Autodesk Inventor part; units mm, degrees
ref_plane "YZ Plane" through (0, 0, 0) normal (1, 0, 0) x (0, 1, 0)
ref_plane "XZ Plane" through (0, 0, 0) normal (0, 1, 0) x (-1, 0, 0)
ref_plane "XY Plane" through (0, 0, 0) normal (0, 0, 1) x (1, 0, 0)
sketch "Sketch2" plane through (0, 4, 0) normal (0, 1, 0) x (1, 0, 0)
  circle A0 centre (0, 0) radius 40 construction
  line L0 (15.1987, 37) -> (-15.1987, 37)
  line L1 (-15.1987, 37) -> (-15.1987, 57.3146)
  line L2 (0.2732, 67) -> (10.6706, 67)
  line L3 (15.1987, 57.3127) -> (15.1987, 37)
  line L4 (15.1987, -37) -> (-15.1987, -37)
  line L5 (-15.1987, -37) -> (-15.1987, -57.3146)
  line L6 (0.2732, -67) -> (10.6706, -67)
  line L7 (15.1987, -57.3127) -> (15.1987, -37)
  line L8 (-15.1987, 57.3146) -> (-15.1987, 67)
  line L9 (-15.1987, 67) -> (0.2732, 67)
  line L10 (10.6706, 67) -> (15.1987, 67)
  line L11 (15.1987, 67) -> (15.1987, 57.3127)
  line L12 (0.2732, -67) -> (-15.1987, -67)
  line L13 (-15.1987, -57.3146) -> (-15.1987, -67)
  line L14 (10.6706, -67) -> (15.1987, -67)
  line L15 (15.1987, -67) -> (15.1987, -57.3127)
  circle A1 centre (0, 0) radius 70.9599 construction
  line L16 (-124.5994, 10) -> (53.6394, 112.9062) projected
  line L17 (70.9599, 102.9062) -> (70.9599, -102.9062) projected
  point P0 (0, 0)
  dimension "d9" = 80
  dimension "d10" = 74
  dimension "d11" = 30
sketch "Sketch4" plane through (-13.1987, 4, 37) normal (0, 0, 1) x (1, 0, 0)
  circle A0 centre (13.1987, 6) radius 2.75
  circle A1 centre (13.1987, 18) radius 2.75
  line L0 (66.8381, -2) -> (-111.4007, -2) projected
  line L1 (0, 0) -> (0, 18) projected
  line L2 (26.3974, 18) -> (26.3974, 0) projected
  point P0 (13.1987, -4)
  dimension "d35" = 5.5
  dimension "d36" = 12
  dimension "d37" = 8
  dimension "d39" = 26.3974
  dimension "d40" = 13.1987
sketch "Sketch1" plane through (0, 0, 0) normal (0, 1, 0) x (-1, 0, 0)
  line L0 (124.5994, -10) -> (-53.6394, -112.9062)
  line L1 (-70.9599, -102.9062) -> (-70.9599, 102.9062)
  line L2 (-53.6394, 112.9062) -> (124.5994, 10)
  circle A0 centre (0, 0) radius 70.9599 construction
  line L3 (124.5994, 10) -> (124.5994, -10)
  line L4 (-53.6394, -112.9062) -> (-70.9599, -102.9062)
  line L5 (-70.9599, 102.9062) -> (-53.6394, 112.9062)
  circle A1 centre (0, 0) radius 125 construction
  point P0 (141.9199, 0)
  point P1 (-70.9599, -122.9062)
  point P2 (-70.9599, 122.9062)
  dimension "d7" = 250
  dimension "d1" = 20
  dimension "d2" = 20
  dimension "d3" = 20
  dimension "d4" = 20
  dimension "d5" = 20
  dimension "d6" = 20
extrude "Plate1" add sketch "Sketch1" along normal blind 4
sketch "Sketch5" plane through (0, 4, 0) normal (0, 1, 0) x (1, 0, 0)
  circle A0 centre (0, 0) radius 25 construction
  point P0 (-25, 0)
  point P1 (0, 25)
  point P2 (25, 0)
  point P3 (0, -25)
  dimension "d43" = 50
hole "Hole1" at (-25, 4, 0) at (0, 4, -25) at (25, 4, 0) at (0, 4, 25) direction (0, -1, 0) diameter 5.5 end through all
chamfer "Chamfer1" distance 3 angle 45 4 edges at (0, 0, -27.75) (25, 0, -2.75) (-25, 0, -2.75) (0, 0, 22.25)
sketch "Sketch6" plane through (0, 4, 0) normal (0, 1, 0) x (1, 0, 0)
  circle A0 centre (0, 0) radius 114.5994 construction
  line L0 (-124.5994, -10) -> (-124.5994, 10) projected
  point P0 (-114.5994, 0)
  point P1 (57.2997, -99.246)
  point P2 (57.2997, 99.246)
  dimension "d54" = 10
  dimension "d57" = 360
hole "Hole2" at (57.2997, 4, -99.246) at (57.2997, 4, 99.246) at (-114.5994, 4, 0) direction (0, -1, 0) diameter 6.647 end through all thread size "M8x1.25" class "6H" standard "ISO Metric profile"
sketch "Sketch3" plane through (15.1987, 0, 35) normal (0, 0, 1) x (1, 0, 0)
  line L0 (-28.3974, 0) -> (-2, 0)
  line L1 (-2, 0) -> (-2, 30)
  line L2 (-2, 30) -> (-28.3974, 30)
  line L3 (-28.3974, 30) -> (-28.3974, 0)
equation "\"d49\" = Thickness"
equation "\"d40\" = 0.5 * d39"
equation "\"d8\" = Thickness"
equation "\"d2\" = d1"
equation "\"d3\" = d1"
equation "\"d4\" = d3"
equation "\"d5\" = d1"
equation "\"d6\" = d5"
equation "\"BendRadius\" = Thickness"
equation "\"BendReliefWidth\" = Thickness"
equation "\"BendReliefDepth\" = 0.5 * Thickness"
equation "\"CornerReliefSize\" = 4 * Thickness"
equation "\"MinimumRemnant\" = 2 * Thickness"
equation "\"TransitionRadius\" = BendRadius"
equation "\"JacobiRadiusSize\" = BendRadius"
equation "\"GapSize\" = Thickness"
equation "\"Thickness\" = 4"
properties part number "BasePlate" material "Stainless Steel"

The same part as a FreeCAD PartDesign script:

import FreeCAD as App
import Part
import Sketcher

V = App.Vector
Q = App.Units.Quantity


def edges_at(feature, points):
    """Names of the edges that pass closest to the given points."""
    edges = feature.Shape.Edges
    near = lambda p: min(range(len(edges)), key=lambda i: edges[i].distToShape(Part.Vertex(*p))[0])
    return sorted({f"Edge{near(p) + 1}" for p in points})

doc = App.newDocument("Part")
body = doc.addObject("PartDesign::Body", "Body")

# Sketch on XZ plane
sketch1 = doc.addObject("Sketcher::SketchObject", "Sketch")
body.addObject(sketch1)
sketch1.AttachmentSupport = (doc.XZ_Plane, [""])
sketch1.MapMode = "FlatFace"
sketch1.addGeometry(Part.LineSegment(V(53.6394, -112.9062, 0), V(-124.5994, -10, 0)), False)
sketch1.addGeometry(Part.LineSegment(V(-124.5994, -10, 0), V(-124.5994, 10, 0)), False)
sketch1.addGeometry(Part.LineSegment(V(-124.5994, 10, 0), V(53.6394, 112.9062, 0)), False)
sketch1.addGeometry(Part.LineSegment(V(53.6394, 112.9062, 0), V(70.9599, 102.9062, 0)), False)
sketch1.addGeometry(Part.LineSegment(V(70.9599, 102.9062, 0), V(70.9599, -102.9062, 0)), False)
sketch1.addGeometry(Part.LineSegment(V(70.9599, -102.9062, 0), V(53.6394, -112.9062, 0)), False)
sketch1.addConstraint(Sketcher.Constraint("Coincident", 0, 2, 1, 1))
sketch1.addConstraint(Sketcher.Constraint("Coincident", 1, 2, 2, 1))
sketch1.addConstraint(Sketcher.Constraint("Coincident", 2, 2, 3, 1))
sketch1.addConstraint(Sketcher.Constraint("Coincident", 3, 2, 4, 1))
sketch1.addConstraint(Sketcher.Constraint("Coincident", 4, 2, 5, 1))
sketch1.addConstraint(Sketcher.Constraint("Coincident", 5, 2, 0, 1))
sketch1.addConstraint(Sketcher.Constraint("Vertical", 1))
sketch1.addConstraint(Sketcher.Constraint("Vertical", 4))
sketch1.addConstraint(Sketcher.Constraint("Symmetric", 2, 2, 5, 2, -1))
sketch1.addConstraint(Sketcher.Constraint("Parallel", 0, 3))
sketch1.addConstraint(Sketcher.Constraint("Parallel", 2, 5))
sketch1.addConstraint(Sketcher.Constraint("Equal", 0, 2))
sketch1.addConstraint(Sketcher.Constraint("DistanceY", 1, 1, 1, 2, Q("20 mm")))
sketch1.addConstraint(Sketcher.Constraint("Distance", 3, Q("20 mm")))
sketch1.addConstraint(Sketcher.Constraint("Angle", 0, Q("150 deg")))
sketch1.addConstraint(Sketcher.Constraint("DistanceX", -1, 1, 3, 2, Q("70.96 mm")))
sketch1.addConstraint(Sketcher.Constraint("DistanceY", 4, 2, 4, 1, Q("205.8124 mm")))
pad1 = doc.addObject("PartDesign::Pad", "Pad")
body.addObject(pad1)
pad1.Profile = sketch1
pad1.Length = 4
pad1.Reversed = True

# Sketch on XZ plane
sketch2 = doc.addObject("Sketcher::SketchObject", "Sketch001")
body.addObject(sketch2)
sketch2.AttachmentSupport = (doc.XZ_Plane, [""])
sketch2.MapMode = "FlatFace"
sketch2.AttachmentOffset = App.Placement(V(0, 0, -4), App.Rotation())
sketch2.addGeometry(Part.Circle(V(-25, 0, 0), V(0, 0, 1), 2.75), False)
sketch2.addGeometry(Part.Circle(V(0, -25, 0), V(0, 0, 1), 2.75), False)
sketch2.addGeometry(Part.Circle(V(25, 0, 0), V(0, 0, 1), 2.75), False)
sketch2.addGeometry(Part.Circle(V(0, 25, 0), V(0, 0, 1), 2.75), False)
sketch2.addConstraint(Sketcher.Constraint("Equal", 0, 1))
sketch2.addConstraint(Sketcher.Constraint("Equal", 1, 2))
sketch2.addConstraint(Sketcher.Constraint("Equal", 2, 3))
sketch2.addConstraint(Sketcher.Constraint("Symmetric", 0, 3, 2, 3, -1, 1))
sketch2.addConstraint(Sketcher.Constraint("Symmetric", 1, 3, 3, 3, -1, 1))
sketch2.addConstraint(Sketcher.Constraint("PointOnObject", 0, 3, -1))
sketch2.addConstraint(Sketcher.Constraint("PointOnObject", 1, 3, -2))
sketch2.addConstraint(Sketcher.Constraint("Diameter", 0, Q("5.5 mm")))
sketch2.addConstraint(Sketcher.Constraint("DistanceX", 0, 3, -1, 1, Q("25 mm")))
sketch2.addConstraint(Sketcher.Constraint("DistanceY", 1, 3, -1, 1, Q("25 mm")))
doc.recompute()
hole = doc.addObject("PartDesign::Hole", "Hole")
body.addObject(hole)
hole.Profile = sketch2
hole.ThreadType = "None"
hole.Diameter = 5.5
hole.DepthType = "ThroughAll"
hole.Reversed = True
doc.recompute()

chamfer = doc.addObject("PartDesign::Chamfer", "Chamfer")
body.addObject(chamfer)
chamfer.Base = (hole, edges_at(hole, [
    (0, 0, -27.75),
    (25, 0, -2.75),
    (-25, 0, -2.75),
    (0, 0, 22.25),
]))
chamfer.Size = 3

# Sketch on XZ plane
sketch3 = doc.addObject("Sketcher::SketchObject", "Sketch002")
body.addObject(sketch3)
sketch3.AttachmentSupport = (doc.XZ_Plane, [""])
sketch3.MapMode = "FlatFace"
sketch3.AttachmentOffset = App.Placement(V(0, 0, -4), App.Rotation())
sketch3.addGeometry(Part.Circle(V(57.2997, -99.246, 0), V(0, 0, 1), 3.3235), False)
sketch3.addGeometry(Part.Circle(V(57.2997, 99.246, 0), V(0, 0, 1), 3.3235), False)
sketch3.addGeometry(Part.Circle(V(-114.5994, 0, 0), V(0, 0, 1), 3.3235), False)
sketch3.addConstraint(Sketcher.Constraint("Equal", 0, 1))
sketch3.addConstraint(Sketcher.Constraint("Equal", 1, 2))
sketch3.addConstraint(Sketcher.Constraint("Symmetric", 0, 3, 1, 3, -1))
sketch3.addConstraint(Sketcher.Constraint("PointOnObject", 2, 3, -1))
sketch3.addConstraint(Sketcher.Constraint("Diameter", 0, Q("6.647 mm")))
sketch3.addConstraint(Sketcher.Constraint("DistanceY", 0, 3, -1, 1, Q("99.246 mm")))
sketch3.addConstraint(Sketcher.Constraint("DistanceX", 2, 3, 0, 3, Q("171.899 mm")))
sketch3.addConstraint(Sketcher.Constraint("DistanceX", -1, 1, 0, 3, Q("57.2997 mm")))
doc.recompute()
hole2 = doc.addObject("PartDesign::Hole", "Hole001")
body.addObject(hole2)
hole2.Profile = sketch3
hole2.ThreadType = "None"
hole2.Diameter = 6.647
hole2.DepthType = "ThroughAll"
hole2.Reversed = True

doc.recompute()
